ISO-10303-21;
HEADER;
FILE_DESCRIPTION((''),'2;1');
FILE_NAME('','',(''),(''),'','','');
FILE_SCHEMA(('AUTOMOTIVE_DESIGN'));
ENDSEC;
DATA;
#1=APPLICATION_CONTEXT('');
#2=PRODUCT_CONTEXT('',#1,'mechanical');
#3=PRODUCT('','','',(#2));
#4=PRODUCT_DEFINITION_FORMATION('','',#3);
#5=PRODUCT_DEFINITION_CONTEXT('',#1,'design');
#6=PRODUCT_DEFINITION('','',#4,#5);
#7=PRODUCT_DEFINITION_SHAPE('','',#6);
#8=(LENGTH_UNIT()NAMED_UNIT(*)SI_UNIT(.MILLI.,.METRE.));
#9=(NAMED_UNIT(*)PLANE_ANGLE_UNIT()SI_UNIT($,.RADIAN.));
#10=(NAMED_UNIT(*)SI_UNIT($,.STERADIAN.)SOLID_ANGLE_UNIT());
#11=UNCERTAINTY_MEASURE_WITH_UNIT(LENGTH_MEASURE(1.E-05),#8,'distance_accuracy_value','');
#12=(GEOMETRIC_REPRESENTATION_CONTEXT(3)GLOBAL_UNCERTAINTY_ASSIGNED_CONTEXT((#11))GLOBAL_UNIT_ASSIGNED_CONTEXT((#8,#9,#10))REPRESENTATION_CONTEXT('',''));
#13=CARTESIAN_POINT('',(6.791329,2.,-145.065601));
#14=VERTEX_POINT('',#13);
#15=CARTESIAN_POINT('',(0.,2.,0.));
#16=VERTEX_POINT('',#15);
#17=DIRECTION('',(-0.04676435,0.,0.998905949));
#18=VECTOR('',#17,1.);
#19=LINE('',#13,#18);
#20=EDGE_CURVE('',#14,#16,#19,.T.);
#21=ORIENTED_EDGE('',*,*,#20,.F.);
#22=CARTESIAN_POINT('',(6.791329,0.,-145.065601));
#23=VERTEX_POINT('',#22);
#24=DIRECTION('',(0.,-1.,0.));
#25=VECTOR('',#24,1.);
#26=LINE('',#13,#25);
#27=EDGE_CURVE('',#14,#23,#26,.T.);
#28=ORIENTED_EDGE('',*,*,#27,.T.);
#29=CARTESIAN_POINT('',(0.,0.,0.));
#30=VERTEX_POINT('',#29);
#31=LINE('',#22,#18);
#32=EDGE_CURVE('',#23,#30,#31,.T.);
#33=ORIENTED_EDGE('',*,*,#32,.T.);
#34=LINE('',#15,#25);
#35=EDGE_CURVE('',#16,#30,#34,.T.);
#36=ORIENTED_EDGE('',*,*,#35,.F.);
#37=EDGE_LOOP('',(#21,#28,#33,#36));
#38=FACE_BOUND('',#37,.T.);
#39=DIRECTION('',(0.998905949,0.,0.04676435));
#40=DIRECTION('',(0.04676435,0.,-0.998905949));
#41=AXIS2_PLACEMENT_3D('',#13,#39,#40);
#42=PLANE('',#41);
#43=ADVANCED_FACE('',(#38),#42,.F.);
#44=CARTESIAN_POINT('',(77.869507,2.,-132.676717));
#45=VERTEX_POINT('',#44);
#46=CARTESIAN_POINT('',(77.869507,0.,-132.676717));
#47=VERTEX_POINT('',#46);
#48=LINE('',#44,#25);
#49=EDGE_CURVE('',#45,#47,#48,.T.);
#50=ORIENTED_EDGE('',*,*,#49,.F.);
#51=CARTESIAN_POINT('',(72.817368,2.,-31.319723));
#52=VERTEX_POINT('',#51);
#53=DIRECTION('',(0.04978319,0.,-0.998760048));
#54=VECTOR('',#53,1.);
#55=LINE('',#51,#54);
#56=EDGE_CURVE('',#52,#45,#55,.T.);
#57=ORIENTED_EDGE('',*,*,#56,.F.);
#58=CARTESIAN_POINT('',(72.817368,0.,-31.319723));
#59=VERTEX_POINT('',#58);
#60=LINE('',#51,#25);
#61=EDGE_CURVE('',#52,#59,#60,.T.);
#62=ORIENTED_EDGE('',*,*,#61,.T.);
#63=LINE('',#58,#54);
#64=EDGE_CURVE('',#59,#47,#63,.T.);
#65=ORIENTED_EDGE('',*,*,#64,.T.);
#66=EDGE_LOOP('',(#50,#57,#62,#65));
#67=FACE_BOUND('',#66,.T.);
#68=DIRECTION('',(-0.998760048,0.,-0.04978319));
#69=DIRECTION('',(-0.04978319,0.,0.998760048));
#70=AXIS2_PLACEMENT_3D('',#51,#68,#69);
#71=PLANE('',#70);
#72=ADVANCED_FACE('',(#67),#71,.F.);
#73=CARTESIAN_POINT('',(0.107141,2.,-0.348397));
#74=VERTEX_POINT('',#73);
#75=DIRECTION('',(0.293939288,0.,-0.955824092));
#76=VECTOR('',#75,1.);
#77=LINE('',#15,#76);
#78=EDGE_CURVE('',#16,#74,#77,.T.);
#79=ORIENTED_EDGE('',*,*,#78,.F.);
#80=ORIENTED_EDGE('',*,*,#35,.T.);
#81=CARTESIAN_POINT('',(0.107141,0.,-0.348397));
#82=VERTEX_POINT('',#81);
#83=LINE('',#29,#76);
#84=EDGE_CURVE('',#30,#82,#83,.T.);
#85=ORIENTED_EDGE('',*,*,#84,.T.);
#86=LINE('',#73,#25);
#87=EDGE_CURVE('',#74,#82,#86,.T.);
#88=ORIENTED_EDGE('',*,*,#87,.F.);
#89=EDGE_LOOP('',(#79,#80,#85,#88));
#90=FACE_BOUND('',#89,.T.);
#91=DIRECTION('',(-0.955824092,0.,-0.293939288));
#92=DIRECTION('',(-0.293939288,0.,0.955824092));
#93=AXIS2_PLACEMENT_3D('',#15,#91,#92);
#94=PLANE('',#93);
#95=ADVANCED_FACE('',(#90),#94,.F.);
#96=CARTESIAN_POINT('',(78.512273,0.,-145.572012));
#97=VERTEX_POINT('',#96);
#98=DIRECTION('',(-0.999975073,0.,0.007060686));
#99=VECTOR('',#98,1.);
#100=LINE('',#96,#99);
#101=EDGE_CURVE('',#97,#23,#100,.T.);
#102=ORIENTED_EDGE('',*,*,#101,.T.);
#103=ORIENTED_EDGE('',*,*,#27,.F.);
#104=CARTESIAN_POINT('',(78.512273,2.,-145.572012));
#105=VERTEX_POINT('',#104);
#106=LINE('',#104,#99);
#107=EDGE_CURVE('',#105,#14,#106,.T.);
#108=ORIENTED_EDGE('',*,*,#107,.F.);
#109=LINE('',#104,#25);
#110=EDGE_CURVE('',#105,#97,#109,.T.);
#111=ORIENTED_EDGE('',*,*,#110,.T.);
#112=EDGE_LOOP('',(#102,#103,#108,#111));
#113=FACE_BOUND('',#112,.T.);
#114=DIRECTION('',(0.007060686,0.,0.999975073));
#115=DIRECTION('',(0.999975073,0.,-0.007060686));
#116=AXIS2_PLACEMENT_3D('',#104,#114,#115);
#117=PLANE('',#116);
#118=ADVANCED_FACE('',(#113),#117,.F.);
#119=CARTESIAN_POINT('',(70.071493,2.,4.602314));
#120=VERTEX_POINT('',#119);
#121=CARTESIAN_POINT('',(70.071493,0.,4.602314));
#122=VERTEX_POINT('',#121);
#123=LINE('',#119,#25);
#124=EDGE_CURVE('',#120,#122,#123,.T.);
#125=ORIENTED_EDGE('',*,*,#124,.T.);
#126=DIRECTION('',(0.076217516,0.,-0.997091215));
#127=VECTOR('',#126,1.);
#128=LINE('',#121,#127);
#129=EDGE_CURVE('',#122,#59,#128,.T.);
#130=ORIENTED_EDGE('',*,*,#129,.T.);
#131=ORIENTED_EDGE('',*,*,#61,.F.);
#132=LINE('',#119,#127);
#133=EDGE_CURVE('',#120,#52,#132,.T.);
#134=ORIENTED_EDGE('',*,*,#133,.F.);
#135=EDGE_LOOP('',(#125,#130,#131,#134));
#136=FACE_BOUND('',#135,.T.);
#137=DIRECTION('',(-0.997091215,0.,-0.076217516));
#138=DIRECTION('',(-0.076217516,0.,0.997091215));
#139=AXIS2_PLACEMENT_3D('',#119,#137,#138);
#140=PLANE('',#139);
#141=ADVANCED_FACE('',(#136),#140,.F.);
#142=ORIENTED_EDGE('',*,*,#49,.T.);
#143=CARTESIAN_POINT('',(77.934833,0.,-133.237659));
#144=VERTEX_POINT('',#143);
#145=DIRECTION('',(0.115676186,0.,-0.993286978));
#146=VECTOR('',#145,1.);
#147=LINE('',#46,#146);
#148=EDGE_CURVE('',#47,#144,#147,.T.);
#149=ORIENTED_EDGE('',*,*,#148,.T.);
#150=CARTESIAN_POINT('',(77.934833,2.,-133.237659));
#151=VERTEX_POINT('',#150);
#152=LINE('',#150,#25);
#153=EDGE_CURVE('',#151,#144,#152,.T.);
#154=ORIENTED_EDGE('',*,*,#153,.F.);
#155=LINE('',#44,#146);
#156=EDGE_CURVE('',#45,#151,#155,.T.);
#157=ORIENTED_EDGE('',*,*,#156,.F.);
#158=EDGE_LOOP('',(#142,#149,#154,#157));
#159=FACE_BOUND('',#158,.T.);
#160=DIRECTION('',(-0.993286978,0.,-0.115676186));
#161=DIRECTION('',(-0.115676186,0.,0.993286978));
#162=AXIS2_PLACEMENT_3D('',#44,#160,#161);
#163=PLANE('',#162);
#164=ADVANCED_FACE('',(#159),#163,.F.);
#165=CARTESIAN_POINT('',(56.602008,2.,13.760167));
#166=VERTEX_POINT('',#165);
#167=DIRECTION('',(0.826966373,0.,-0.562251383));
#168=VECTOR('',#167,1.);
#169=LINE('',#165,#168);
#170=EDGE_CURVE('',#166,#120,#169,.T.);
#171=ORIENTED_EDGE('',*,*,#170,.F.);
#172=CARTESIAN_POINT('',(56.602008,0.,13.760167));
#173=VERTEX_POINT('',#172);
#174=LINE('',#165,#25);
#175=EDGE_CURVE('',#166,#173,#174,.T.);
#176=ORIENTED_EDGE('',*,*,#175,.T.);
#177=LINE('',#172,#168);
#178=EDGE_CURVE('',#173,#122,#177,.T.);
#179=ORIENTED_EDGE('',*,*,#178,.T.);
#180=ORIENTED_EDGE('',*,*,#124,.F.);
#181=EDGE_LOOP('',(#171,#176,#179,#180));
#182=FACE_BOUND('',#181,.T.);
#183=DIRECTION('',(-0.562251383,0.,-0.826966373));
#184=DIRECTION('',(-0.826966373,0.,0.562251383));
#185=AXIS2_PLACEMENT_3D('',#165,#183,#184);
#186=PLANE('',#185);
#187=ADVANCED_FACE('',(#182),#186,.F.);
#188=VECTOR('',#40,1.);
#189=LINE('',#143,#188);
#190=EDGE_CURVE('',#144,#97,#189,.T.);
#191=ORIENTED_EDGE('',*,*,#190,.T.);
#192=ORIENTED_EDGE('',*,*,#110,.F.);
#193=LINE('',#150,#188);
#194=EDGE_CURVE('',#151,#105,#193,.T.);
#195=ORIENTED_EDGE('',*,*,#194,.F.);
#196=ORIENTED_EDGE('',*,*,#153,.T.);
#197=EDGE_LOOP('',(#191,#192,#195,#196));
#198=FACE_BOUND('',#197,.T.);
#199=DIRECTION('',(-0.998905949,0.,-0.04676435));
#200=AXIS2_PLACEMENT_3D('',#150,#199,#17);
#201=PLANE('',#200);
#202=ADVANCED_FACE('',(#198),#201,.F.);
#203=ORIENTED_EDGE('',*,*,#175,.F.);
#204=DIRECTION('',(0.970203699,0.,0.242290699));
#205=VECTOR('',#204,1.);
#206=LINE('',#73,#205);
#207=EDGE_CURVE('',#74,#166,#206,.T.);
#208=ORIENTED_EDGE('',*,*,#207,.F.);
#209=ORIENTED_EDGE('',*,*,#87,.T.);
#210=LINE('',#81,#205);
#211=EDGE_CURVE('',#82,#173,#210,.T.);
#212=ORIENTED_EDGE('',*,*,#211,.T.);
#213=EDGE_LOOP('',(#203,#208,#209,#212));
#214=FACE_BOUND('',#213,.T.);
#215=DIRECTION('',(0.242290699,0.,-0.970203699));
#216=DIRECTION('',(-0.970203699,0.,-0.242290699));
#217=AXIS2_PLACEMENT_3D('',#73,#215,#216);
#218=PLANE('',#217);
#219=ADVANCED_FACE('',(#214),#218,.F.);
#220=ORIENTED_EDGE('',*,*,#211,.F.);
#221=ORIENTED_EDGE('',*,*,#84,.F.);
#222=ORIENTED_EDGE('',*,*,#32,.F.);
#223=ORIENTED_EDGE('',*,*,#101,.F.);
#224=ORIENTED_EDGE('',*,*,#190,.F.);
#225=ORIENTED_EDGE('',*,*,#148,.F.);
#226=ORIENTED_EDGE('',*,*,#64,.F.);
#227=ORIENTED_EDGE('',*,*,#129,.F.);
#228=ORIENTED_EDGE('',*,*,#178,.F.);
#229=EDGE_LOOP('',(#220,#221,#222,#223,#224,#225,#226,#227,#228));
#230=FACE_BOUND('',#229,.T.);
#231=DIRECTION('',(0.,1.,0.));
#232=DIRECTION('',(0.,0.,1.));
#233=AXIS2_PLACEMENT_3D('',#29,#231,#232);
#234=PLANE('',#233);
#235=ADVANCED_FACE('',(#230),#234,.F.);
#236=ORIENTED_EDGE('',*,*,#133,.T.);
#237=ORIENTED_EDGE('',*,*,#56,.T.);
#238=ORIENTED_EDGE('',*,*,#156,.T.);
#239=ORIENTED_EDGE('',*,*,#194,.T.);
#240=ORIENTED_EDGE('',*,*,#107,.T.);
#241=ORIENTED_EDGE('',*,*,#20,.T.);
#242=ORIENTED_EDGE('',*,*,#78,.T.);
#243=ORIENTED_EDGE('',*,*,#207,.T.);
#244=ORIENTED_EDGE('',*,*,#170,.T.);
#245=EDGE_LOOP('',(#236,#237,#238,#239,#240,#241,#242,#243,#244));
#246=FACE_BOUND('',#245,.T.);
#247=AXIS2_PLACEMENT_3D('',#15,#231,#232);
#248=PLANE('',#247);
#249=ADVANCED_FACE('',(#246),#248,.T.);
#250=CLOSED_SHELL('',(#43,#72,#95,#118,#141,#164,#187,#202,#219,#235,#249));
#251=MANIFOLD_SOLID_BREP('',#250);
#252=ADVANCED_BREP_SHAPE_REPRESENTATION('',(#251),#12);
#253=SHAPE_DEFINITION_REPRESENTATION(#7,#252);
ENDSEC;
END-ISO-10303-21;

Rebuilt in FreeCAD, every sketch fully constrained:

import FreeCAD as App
import Part
import Sketcher
from FreeCAD import Vector

doc = App.newDocument("Part")
body = doc.addObject("PartDesign::Body", "Body")

# Sketch on XZ plane
sketch1 = body.newObject("Sketcher::SketchObject", "Sketch")
sketch1.AttachmentSupport = (doc.getObject("XZ_Plane"), [""])
sketch1.MapMode = "FlatFace"
sketch1.addGeometry(Part.LineSegment(Vector(6.791329, -145.065601, 0), Vector(0, 0, 0)), False)
sketch1.addGeometry(Part.LineSegment(Vector(0, 0, 0), Vector(0.107141, -0.348397, 0)), False)
sketch1.addGeometry(Part.LineSegment(Vector(0.107141, -0.348397, 0), Vector(56.602008, 13.760167, 0)), False)
sketch1.addGeometry(Part.LineSegment(Vector(56.602008, 13.760167, 0), Vector(70.071493, 4.602314, 0)), False)
sketch1.addGeometry(Part.LineSegment(Vector(70.071493, 4.602314, 0), Vector(72.817368, -31.319723, 0)), False)
sketch1.addGeometry(Part.LineSegment(Vector(72.817368, -31.319723, 0), Vector(77.869507, -132.676717, 0)), False)
sketch1.addGeometry(Part.LineSegment(Vector(77.869507, -132.676717, 0), Vector(77.934833, -133.237659, 0)), False)
sketch1.addGeometry(Part.LineSegment(Vector(77.934833, -133.237659, 0), Vector(78.512273, -145.572012, 0)), False)
sketch1.addGeometry(Part.LineSegment(Vector(78.512273, -145.572012, 0), Vector(6.791329, -145.065601, 0)), False)
sketch1.addConstraint(Sketcher.Constraint("Coincident", 0, 2, 1, 1))
sketch1.addConstraint(Sketcher.Constraint("Coincident", 1, 2, 2, 1))
sketch1.addConstraint(Sketcher.Constraint("Coincident", 2, 2, 3, 1))
sketch1.addConstraint(Sketcher.Constraint("Coincident", 3, 2, 4, 1))
sketch1.addConstraint(Sketcher.Constraint("Coincident", 4, 2, 5, 1))
sketch1.addConstraint(Sketcher.Constraint("Coincident", 5, 2, 6, 1))
sketch1.addConstraint(Sketcher.Constraint("Coincident", 6, 2, 7, 1))
sketch1.addConstraint(Sketcher.Constraint("Coincident", 7, 2, 8, 1))
sketch1.addConstraint(Sketcher.Constraint("Coincident", 8, 2, 0, 1))
sketch1.addConstraint(Sketcher.Constraint("Coincident", 0, 2, -1, 1))
sketch1.addConstraint(Sketcher.Constraint("Distance", 1, 0.364499))
sketch1.addConstraint(Sketcher.Constraint("DistanceY", 8, 2, -1, 1, 145.065601))
sketch1.addConstraint(Sketcher.Constraint("DistanceX", 2, 2, 5, 2, 21.2675))
sketch1.addConstraint(Sketcher.Constraint("Distance", 4, 36.026832))
sketch1.addConstraint(Sketcher.Constraint("DistanceX", -1, 1, 1, 2, 0.107141))
sketch1.addConstraint(Sketcher.Constraint("DistanceX", -1, 1, 4, 2, 72.817368))
sketch1.addConstraint(Sketcher.Constraint("DistanceY", 6, 2, -1, 1, 133.237659))
sketch1.addConstraint(Sketcher.Constraint("DistanceX", -1, 1, 8, 2, 6.791329))
sketch1.addConstraint(Sketcher.Constraint("DistanceY", 1, 2, 3, 2, 4.950711))
sketch1.addConstraint(Sketcher.Constraint("DistanceX", 2, 2, 4, 2, 16.215361))
sketch1.addConstraint(Sketcher.Constraint("DistanceY", 4, 2, 2, 2, 45.07989))
sketch1.addConstraint(Sketcher.Constraint("DistanceY", 5, 2, 3, 2, 137.279031))
sketch1.addConstraint(Sketcher.Constraint("DistanceX", 3, 2, 6, 2, 7.863341))
sketch1.addConstraint(Sketcher.Constraint("DistanceX", 6, 2, 7, 2, 0.57744))
sketch1.addConstraint(Sketcher.Constraint("DistanceY", 7, 2, 4, 2, 114.252289))
sketch1.addConstraint(Sketcher.Constraint("DistanceY", 7, 2, 8, 2, 0.506412))
pad1 = body.newObject("PartDesign::Pad", "Pad")
pad1.Profile = sketch1
pad1.Length = 2
pad1.Reversed = True

doc.recompute()
